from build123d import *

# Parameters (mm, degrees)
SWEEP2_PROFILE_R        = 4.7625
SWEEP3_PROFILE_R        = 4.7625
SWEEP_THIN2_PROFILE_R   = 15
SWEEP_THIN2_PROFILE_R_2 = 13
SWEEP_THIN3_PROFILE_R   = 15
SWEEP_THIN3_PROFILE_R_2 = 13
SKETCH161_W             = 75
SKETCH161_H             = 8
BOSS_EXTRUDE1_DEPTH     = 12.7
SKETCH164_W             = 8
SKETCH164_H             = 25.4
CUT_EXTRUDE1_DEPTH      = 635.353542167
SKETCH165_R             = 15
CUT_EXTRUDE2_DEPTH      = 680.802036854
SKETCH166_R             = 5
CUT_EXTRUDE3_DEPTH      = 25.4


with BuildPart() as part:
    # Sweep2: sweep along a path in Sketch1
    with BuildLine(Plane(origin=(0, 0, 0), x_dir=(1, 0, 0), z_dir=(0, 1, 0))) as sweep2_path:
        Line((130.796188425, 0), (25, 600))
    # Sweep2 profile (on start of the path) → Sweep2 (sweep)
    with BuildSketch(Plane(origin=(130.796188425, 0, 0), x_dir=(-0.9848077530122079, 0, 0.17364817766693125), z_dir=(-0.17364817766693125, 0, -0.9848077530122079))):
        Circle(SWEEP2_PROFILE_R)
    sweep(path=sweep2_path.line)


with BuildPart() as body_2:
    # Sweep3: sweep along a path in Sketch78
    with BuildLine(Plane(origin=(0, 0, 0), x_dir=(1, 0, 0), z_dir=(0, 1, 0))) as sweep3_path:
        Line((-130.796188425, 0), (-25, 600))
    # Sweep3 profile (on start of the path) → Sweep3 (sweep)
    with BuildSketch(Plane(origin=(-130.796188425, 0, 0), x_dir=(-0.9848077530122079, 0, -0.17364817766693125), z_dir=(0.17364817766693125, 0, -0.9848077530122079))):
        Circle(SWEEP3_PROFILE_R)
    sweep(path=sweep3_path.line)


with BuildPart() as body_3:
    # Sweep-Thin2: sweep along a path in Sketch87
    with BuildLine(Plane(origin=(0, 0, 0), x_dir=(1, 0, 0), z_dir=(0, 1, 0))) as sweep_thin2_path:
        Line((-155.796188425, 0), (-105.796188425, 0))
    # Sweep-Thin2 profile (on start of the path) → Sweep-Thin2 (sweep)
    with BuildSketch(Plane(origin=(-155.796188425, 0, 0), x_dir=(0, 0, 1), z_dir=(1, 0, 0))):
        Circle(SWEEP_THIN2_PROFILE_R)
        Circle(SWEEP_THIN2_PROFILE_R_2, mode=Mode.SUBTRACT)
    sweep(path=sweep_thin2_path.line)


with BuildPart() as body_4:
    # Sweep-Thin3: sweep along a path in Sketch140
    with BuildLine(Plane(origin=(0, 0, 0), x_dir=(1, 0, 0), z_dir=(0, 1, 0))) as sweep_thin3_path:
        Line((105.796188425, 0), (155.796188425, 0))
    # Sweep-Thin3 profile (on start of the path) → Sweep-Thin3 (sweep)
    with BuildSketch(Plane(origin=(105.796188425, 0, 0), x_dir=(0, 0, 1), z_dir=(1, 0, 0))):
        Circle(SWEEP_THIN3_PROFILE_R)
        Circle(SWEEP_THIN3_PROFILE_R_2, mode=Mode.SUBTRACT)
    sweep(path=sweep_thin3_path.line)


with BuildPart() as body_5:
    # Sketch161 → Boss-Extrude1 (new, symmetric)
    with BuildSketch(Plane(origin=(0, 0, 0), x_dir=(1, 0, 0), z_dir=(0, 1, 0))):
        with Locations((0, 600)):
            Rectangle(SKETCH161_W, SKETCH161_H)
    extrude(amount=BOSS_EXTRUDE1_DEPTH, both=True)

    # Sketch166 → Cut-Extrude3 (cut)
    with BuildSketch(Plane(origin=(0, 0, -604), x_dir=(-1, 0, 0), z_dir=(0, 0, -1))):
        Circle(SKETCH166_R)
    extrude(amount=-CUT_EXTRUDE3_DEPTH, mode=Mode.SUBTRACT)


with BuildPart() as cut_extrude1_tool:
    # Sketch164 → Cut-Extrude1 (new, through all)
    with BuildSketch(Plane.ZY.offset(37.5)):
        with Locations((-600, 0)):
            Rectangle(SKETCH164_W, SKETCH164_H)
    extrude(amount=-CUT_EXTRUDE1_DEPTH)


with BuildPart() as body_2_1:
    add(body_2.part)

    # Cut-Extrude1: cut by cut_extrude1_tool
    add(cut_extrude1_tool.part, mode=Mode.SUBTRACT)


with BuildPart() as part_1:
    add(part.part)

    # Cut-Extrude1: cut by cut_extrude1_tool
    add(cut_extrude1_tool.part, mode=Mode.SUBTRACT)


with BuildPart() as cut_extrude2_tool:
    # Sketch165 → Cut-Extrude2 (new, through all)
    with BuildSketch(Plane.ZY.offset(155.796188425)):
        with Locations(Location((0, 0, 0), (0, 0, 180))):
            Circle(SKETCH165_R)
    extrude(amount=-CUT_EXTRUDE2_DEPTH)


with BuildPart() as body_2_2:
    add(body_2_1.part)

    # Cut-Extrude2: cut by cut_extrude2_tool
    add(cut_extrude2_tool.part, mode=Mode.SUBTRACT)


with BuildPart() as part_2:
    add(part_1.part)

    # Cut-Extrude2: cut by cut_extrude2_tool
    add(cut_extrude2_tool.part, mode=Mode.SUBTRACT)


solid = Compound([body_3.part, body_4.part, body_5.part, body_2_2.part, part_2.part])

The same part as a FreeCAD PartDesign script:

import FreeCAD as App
import Part
import Sketcher

V = App.Vector


def add_polygon(sketch, points):
    """Adds a closed chain of lines whose ends are joined by coincident constraints."""
    first, n = sketch.GeometryCount, len(points)
    for a, b in zip(points, points[1:] + points[:1]):
        sketch.addGeometry(Part.LineSegment(App.Vector(*a, 0), App.Vector(*b, 0)), False)
    for i in range(n):
        sketch.addConstraint(Sketcher.Constraint("Coincident", first + i, 2, first + (i + 1) % n, 1))

doc = App.newDocument("Part")
params = doc.addObject("Spreadsheet::Sheet", "Params")
for row, (alias, value) in enumerate([
    ("sketch5_diameter", "30 mm"),
    ("sketch5_diameter2", "26 mm"),
    ("sketch6_width", "50 mm"),
    ("sketch7_diameter", "30 mm"),
    ("sketch7_diameter2", "26 mm"),
    ("sketch8_width", "50 mm"),
    ("sketch9_width", "75 mm"),
    ("sketch9_height", "8 mm"),
    ("pad1_length", "25.4 mm"),
    ("sketch10_diameter", "10 mm"),
    ("pocket1_length", "25.4 mm"),
    ("sketch11_height", "8 mm"),
    ("sketch11_width", "25.4 mm"),
    ("pad2_length", "635.353542 mm"),
    ("sketch12_diameter", "30 mm"),
    ("pad3_length", "680.802037 mm"),
], start=1):
    params.set(f"A{row}", alias)
    params.set(f"B{row}", "=" + value)
    params.setAlias(f"B{row}", alias)

body = doc.addObject("PartDesign::Body", "Body")

sketch1 = doc.addObject("Sketcher::SketchObject", "Sketch")
body.addObject(sketch1)
sketch1.Placement = App.Placement(V(130.796188, 0, 0), App.Rotation(V(-0.984807753, 0, 0.173648178), V(0, 1, 0), V(-0.173648178, 0, -0.984807753), "ZXY"))
sketch1.addGeometry(Part.Circle(V(0, 0, 0), V(0, 0, 1), 4.7625), False)
sketch1.addConstraint(Sketcher.Constraint("Coincident", 0, 3, -1, 1))
sketch1.addConstraint(Sketcher.Constraint("Diameter", 0, 9.525))

sketch2 = doc.addObject("Sketcher::SketchObject", "Sketch001")
body.addObject(sketch2)
sketch2.Placement = App.Placement(V(126.852201, 0, -22.367466), App.Rotation(V(-0.173648178, 0, -0.984807753), V(0, 1, 0), V(0.984807753, 0, -0.173648178), "ZXY"))
sketch2.addGeometry(Part.LineSegment(V(-22.71252, 0, 0), V(586.543447, 0, 0)), False)
sketch2.addConstraint(Sketcher.Constraint("Horizontal", 0))
sketch2.addConstraint(Sketcher.Constraint("PointOnObject", 0, 1, -1))
sketch2.addConstraint(Sketcher.Constraint("DistanceX", 0, 1, 0, 2, 609.255967))
sketch2.addConstraint(Sketcher.Constraint("DistanceX", 0, 1, -1, 1, 22.71252))
doc.recompute()

additivepipe = doc.addObject("PartDesign::AdditivePipe", "AdditivePipe")
body.addObject(additivepipe)
additivepipe.Profile = sketch1
additivepipe.Spine = (sketch2, ["Edge1"])
body2 = doc.addObject("PartDesign::Body", "Body001")

sketch3 = doc.addObject("Sketcher::SketchObject", "Sketch002")
body2.addObject(sketch3)
sketch3.Placement = App.Placement(V(-130.796188, 0, 0), App.Rotation(V(-0.984807753, 0, -0.173648178), V(0, 1, 0), V(0.173648178, 0, -0.984807753), "ZXY"))
sketch3.addGeometry(Part.Circle(V(0, 0, 0), V(0, 0, 1), 4.7625), False)
sketch3.addConstraint(Sketcher.Constraint("Coincident", 0, 3, -1, 1))
sketch3.addConstraint(Sketcher.Constraint("Diameter", 0, 9.525))

sketch4 = doc.addObject("Sketcher::SketchObject", "Sketch003")
body2.addObject(sketch4)
sketch4.Placement = App.Placement(V(-126.852201, 0, -22.367466), App.Rotation(V(0.173648178, 0, -0.984807753), V(0, 1, 0), V(0.984807753, 0, 0.173648178), "ZXY"))
sketch4.addGeometry(Part.LineSegment(V(-22.71252, 0, 0), V(586.543447, 0, 0)), False)
sketch4.addConstraint(Sketcher.Constraint("Horizontal", 0))
sketch4.addConstraint(Sketcher.Constraint("PointOnObject", 0, 1, -1))
sketch4.addConstraint(Sketcher.Constraint("DistanceX", 0, 1, 0, 2, 609.255967))
sketch4.addConstraint(Sketcher.Constraint("DistanceX", 0, 1, -1, 1, 22.71252))
doc.recompute()

additivepipe2 = doc.addObject("PartDesign::AdditivePipe", "AdditivePipe001")
body2.addObject(additivepipe2)
additivepipe2.Profile = sketch3
additivepipe2.Spine = (sketch4, ["Edge1"])
body3 = doc.addObject("PartDesign::Body", "Body002")

sketch5 = doc.addObject("Sketcher::SketchObject", "Sketch004")
body3.addObject(sketch5)
sketch5.AttachmentSupport = (doc.getObject("YZ_Plane002"), [""])
sketch5.MapMode = "FlatFace"
sketch5.AttachmentOffset = App.Placement(V(0, 0, -155.796188), App.Rotation())
sketch5.addGeometry(Part.Circle(V(0, 0, 0), V(0, 0, 1), 15), False)
sketch5.addGeometry(Part.Circle(V(0, 0, 0), V(0, 0, 1), 13), False)
sketch5.addConstraint(Sketcher.Constraint("Coincident", 0, 3, -1, 1))
sketch5.addConstraint(Sketcher.Constraint("Coincident", 1, 3, -1, 1))
sketch5.addConstraint(Sketcher.Constraint("Diameter", 0, 30.0))
sketch5.addConstraint(Sketcher.Constraint("Diameter", 1, 26.0))
sketch5.setExpression("Constraints[2]", "Params.sketch5_diameter")
sketch5.setExpression("Constraints[3]", "Params.sketch5_diameter2")

sketch6 = doc.addObject("Sketcher::SketchObject", "Sketch005")
body3.addObject(sketch6)
sketch6.AttachmentSupport = (doc.getObject("XY_Plane002"), [""])
sketch6.MapMode = "FlatFace"
sketch6.addGeometry(Part.LineSegment(V(-155.796188, 0, 0), V(-105.796188, 0, 0)), False)
sketch6.addConstraint(Sketcher.Constraint("Horizontal", 0))
sketch6.addConstraint(Sketcher.Constraint("PointOnObject", 0, 1, -1))
sketch6.addConstraint(Sketcher.Constraint("DistanceX", 0, 1, 0, 2, 50.0))
sketch6.addConstraint(Sketcher.Constraint("DistanceX", 0, 1, -1, 1, 155.796188))
sketch6.setExpression("Constraints[2]", "Params.sketch6_width")
doc.recompute()

additivepipe3 = doc.addObject("PartDesign::AdditivePipe", "AdditivePipe002")
body3.addObject(additivepipe3)
additivepipe3.Profile = sketch5
additivepipe3.Spine = (sketch6, ["Edge1"])
body4 = doc.addObject("PartDesign::Body", "Body003")

sketch7 = doc.addObject("Sketcher::SketchObject", "Sketch006")
body4.addObject(sketch7)
sketch7.AttachmentSupport = (doc.getObject("YZ_Plane003"), [""])
sketch7.MapMode = "FlatFace"
sketch7.AttachmentOffset = App.Placement(V(0, 0, 105.796188), App.Rotation())
sketch7.addGeometry(Part.Circle(V(0, 0, 0), V(0, 0, 1), 15), False)
sketch7.addGeometry(Part.Circle(V(0, 0, 0), V(0, 0, 1), 13), False)
sketch7.addConstraint(Sketcher.Constraint("Coincident", 0, 3, -1, 1))
sketch7.addConstraint(Sketcher.Constraint("Coincident", 1, 3, -1, 1))
sketch7.addConstraint(Sketcher.Constraint("Diameter", 0, 30.0))
sketch7.addConstraint(Sketcher.Constraint("Diameter", 1, 26.0))
sketch7.setExpression("Constraints[2]", "Params.sketch7_diameter")
sketch7.setExpression("Constraints[3]", "Params.sketch7_diameter2")

sketch8 = doc.addObject("Sketcher::SketchObject", "Sketch007")
body4.addObject(sketch8)
sketch8.AttachmentSupport = (doc.getObject("XY_Plane003"), [""])
sketch8.MapMode = "FlatFace"
sketch8.addGeometry(Part.LineSegment(V(105.796188, 0, 0), V(155.796188, 0, 0)), False)
sketch8.addConstraint(Sketcher.Constraint("Horizontal", 0))
sketch8.addConstraint(Sketcher.Constraint("PointOnObject", 0, 1, -1))
sketch8.addConstraint(Sketcher.Constraint("DistanceX", 0, 1, 0, 2, 50.0))
sketch8.addConstraint(Sketcher.Constraint("DistanceX", -1, 1, 0, 1, 105.796188))
sketch8.setExpression("Constraints[2]", "Params.sketch8_width")
doc.recompute()

additivepipe4 = doc.addObject("PartDesign::AdditivePipe", "AdditivePipe003")
body4.addObject(additivepipe4)
additivepipe4.Profile = sketch7
additivepipe4.Spine = (sketch8, ["Edge1"])
body5 = doc.addObject("PartDesign::Body", "Body004")

sketch9 = doc.addObject("Sketcher::SketchObject", "Sketch008")
body5.addObject(sketch9)
sketch9.AttachmentSupport = (doc.getObject("XZ_Plane004"), [""])
sketch9.MapMode = "FlatFace"
add_polygon(sketch9, [(-37.5, -604), (-37.5, -596), (37.5, -596), (37.5, -604)])
sketch9.addConstraint(Sketcher.Constraint("Vertical", 0))
sketch9.addConstraint(Sketcher.Constraint("Horizontal", 1))
sketch9.addConstraint(Sketcher.Constraint("Vertical", 2))
sketch9.addConstraint(Sketcher.Constraint("Horizontal", 3))
sketch9.addConstraint(Sketcher.Constraint("DistanceX", 1, 1, 1, 2, 75.0))
sketch9.addConstraint(Sketcher.Constraint("DistanceY", 0, 1, 0, 2, 8.0))
sketch9.addConstraint(Sketcher.Constraint("DistanceY", 0, 2, -1, 1, 596.0))
sketch9.addConstraint(Sketcher.Constraint("DistanceX", 0, 2, -1, 1, 37.5))
sketch9.setExpression("Constraints[8]", "Params.sketch9_width")
sketch9.setExpression("Constraints[9]", "Params.sketch9_height")
pad1 = doc.addObject("PartDesign::Pad", "Pad")
body5.addObject(pad1)
pad1.Profile = sketch9
pad1.setExpression("Length", "Params.pad1_length")
pad1.Midplane = True

sketch10 = doc.addObject("Sketcher::SketchObject", "Sketch009")
body5.addObject(sketch10)
sketch10.AttachmentSupport = (doc.getObject("XY_Plane004"), [""])
sketch10.MapMode = "FlatFace"
sketch10.AttachmentOffset = App.Placement(V(0, 0, -604), App.Rotation())
sketch10.addGeometry(Part.Circle(V(0, 0, 0), V(0, 0, 1), 5), False)
sketch10.addConstraint(Sketcher.Constraint("Coincident", 0, 3, -1, 1))
sketch10.addConstraint(Sketcher.Constraint("Diameter", 0, 10.0))
sketch10.setExpression("Constraints[1]", "Params.sketch10_diameter")
pocket1 = doc.addObject("PartDesign::Pocket", "Pocket")
body5.addObject(pocket1)
pocket1.Profile = sketch10
pocket1.setExpression("Length", "Params.pocket1_length")
pocket1.Reversed = True
body6 = doc.addObject("PartDesign::Body", "Body005")

sketch11 = doc.addObject("Sketcher::SketchObject", "Sketch010")
body6.addObject(sketch11)
sketch11.AttachmentSupport = (doc.getObject("YZ_Plane005"), [""])
sketch11.MapMode = "FlatFace"
sketch11.AttachmentOffset = App.Placement(V(0, 0, -37.5), App.Rotation())
add_polygon(sketch11, [(12.7, -604), (-12.7, -604), (-12.7, -596), (12.7, -596)])
sketch11.addConstraint(Sketcher.Constraint("Horizontal", 0))
sketch11.addConstraint(Sketcher.Constraint("Vertical", 1))
sketch11.addConstraint(Sketcher.Constraint("Horizontal", 2))
sketch11.addConstraint(Sketcher.Constraint("Vertical", 3))
sketch11.addConstraint(Sketcher.Constraint("DistanceY", 1, 1, 1, 2, 8.0))
sketch11.addConstraint(Sketcher.Constraint("DistanceX", 0, 2, 0, 1, 25.4))
sketch11.addConstraint(Sketcher.Constraint("DistanceY", 0, 2, -1, 1, 604.0))
sketch11.addConstraint(Sketcher.Constraint("DistanceX", 0, 2, -1, 1, 12.7))
sketch11.setExpression("Constraints[8]", "Params.sketch11_height")
sketch11.setExpression("Constraints[9]", "Params.sketch11_width")
pad2 = doc.addObject("PartDesign::Pad", "Pad001")
body6.addObject(pad2)
pad2.Profile = sketch11
pad2.setExpression("Length", "Params.pad2_length")
doc.recompute()

body7 = doc.addObject("PartDesign::Body", "Body006")
body7.BaseFeature = body6
boolean = doc.addObject("PartDesign::Boolean", "Boolean")
body2.addObject(boolean)
boolean.Type = "Cut"
boolean.addObjects([body7])
doc.recompute()

boolean2 = doc.addObject("PartDesign::Boolean", "Boolean001")
body.addObject(boolean2)
boolean2.Type = "Cut"
boolean2.addObjects([body6])
body8 = doc.addObject("PartDesign::Body", "Body007")

sketch12 = doc.addObject("Sketcher::SketchObject", "Sketch011")
body8.addObject(sketch12)
sketch12.AttachmentSupport = (doc.getObject("YZ_Plane007"), [""])
sketch12.MapMode = "FlatFace"
sketch12.AttachmentOffset = App.Placement(V(0, 0, -155.796188), App.Rotation())
sketch12.addGeometry(Part.Circle(V(0, 0, 0), V(0, 0, 1), 15), False)
sketch12.addConstraint(Sketcher.Constraint("Coincident", 0, 3, -1, 1))
sketch12.addConstraint(Sketcher.Constraint("Diameter", 0, 30.0))
sketch12.setExpression("Constraints[1]", "Params.sketch12_diameter")
pad3 = doc.addObject("PartDesign::Pad", "Pad002")
body8.addObject(pad3)
pad3.Profile = sketch12
pad3.setExpression("Length", "Params.pad3_length")
doc.recompute()

body9 = doc.addObject("PartDesign::Body", "Body008")
body9.BaseFeature = body8
boolean3 = doc.addObject("PartDesign::Boolean", "Boolean002")
body2.addObject(boolean3)
boolean3.Type = "Cut"
boolean3.addObjects([body9])
doc.recompute()

boolean4 = doc.addObject("PartDesign::Boolean", "Boolean003")
body.addObject(boolean4)
boolean4.Type = "Cut"
boolean4.addObjects([body8])

doc.recompute()
